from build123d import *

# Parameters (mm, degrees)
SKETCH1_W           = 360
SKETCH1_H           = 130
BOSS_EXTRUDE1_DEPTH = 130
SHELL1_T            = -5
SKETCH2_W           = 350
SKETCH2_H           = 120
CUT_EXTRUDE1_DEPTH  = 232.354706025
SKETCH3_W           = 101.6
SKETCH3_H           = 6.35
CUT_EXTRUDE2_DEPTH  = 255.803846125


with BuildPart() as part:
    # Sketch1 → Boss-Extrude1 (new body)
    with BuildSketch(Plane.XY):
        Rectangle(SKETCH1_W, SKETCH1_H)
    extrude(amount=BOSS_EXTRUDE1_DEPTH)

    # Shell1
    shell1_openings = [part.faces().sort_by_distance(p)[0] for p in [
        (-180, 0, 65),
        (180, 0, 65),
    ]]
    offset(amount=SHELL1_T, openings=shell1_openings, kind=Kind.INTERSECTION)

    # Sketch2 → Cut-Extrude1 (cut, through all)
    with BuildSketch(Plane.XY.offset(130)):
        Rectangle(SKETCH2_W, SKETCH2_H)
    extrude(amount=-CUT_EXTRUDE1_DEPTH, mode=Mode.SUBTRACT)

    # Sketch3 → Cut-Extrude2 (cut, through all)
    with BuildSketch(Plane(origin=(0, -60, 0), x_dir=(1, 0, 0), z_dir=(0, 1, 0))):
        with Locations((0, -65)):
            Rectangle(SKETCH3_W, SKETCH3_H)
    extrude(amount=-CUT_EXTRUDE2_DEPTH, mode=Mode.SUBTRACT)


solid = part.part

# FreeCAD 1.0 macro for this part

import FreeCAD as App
import Part
import Sketcher
from FreeCAD import Vector
Q = App.Units.Quantity


def faces_at(feature, points):
    """Names of the faces that lie closest to the given points."""
    faces = feature.Shape.Faces
    near = lambda p: min(range(len(faces)), key=lambda i: faces[i].distToShape(Part.Vertex(*p))[0])
    return sorted({f"Face{near(p) + 1}" for p in points})


def add_polygon(sketch, points):
    """Adds a closed chain of lines whose ends are joined by coincident constraints."""
    first, n = sketch.GeometryCount, len(points)
    for a, b in zip(points, points[1:] + points[:1]):
        sketch.addGeometry(Part.LineSegment(App.Vector(*a, 0), App.Vector(*b, 0)), False)
    for i in range(n):
        sketch.addConstraint(Sketcher.Constraint("Coincident", first + i, 2, first + (i + 1) % n, 1))

doc = App.newDocument("Part")
body = doc.addObject("PartDesign::Body", "Body")

# Sketch on XY plane
sketch1 = body.newObject("Sketcher::SketchObject", "Sketch")
sketch1.AttachmentSupport = (doc.getObject("XY_Plane"), [""])
sketch1.MapMode = "FlatFace"
add_polygon(sketch1, [(-180, 65), (-180, -65), (180, -65), (180, 65)])  # lines 0-3
sketch1.addConstraint([
    Sketcher.Constraint("Vertical", 0),
    Sketcher.Constraint("Horizontal", 1),
    Sketcher.Constraint("Vertical", 2),
    Sketcher.Constraint("Horizontal", 3),
    Sketcher.Constraint("Symmetric", 0, 2, 2, 2, -1, 1),
    Sketcher.Constraint("DistanceX", 1, 1, 1, 2, Q("360 mm")),
    Sketcher.Constraint("DistanceY", 0, 2, 0, 1, Q("130 mm")),
])
pad1 = body.newObject("PartDesign::Pad", "Pad")
pad1.Profile = sketch1
pad1.Length = 130
doc.recompute()

thickness = body.newObject("PartDesign::Thickness", "Thickness")
thickness.Base = (pad1, faces_at(pad1, [(-180, 0, 65), (180, 0, 65)]))
thickness.Value = 5
thickness.Reversed = True
thickness.Join = "Intersection"

# Sketch on XY plane
sketch2 = body.newObject("Sketcher::SketchObject", "Sketch001")
sketch2.AttachmentSupport = (doc.getObject("XY_Plane"), [""])
sketch2.MapMode = "FlatFace"
sketch2.AttachmentOffset = App.Placement(Vector(0, 0, 130), App.Rotation())
add_polygon(sketch2, [(-175, 60), (-175, -60), (175, -60), (175, 60)])  # lines 0-3
sketch2.addConstraint([
    Sketcher.Constraint("Vertical", 0),
    Sketcher.Constraint("Horizontal", 1),
    Sketcher.Constraint("Vertical", 2),
    Sketcher.Constraint("Horizontal", 3),
    Sketcher.Constraint("Symmetric", 0, 2, 2, 2, -1, 1),
    Sketcher.Constraint("DistanceX", 1, 1, 1, 2, Q("350 mm")),
    Sketcher.Constraint("DistanceY", 0, 2, 0, 1, Q("120 mm")),
])
pocket1 = body.newObject("PartDesign::Pocket", "Pocket")
pocket1.Profile = sketch2
pocket1.Type = "ThroughAll"

# Sketch on XZ plane
sketch3 = body.newObject("Sketcher::SketchObject", "Sketch002")
sketch3.AttachmentSupport = (doc.getObject("XZ_Plane"), [""])
sketch3.MapMode = "FlatFace"
sketch3.AttachmentOffset = App.Placement(Vector(0, 0, 60), App.Rotation())
add_polygon(sketch3, [(-51, 62), (-51, 68), (51, 68), (51, 62)])  # lines 0-3
sketch3.addConstraint([
    Sketcher.Constraint("Vertical", 0),
    Sketcher.Constraint("Horizontal", 1),
    Sketcher.Constraint("Vertical", 2),
    Sketcher.Constraint("Horizontal", 3),
    Sketcher.Constraint("DistanceX", 1, 1, 1, 2, Q("101.6 mm")),
    Sketcher.Constraint("DistanceY", 0, 1, 0, 2, Q("6.35 mm")),
    Sketcher.Constraint("DistanceX", 0, 2, -1, 1, Q("50.8 mm")),
    Sketcher.Constraint("DistanceY", -1, 1, 0, 2, Q("68.175 mm")),
])
pocket2 = body.newObject("PartDesign::Pocket", "Pocket001")
pocket2.Profile = sketch3
pocket2.Type = "ThroughAll"
pocket2.Reversed = True

doc.recompute()
